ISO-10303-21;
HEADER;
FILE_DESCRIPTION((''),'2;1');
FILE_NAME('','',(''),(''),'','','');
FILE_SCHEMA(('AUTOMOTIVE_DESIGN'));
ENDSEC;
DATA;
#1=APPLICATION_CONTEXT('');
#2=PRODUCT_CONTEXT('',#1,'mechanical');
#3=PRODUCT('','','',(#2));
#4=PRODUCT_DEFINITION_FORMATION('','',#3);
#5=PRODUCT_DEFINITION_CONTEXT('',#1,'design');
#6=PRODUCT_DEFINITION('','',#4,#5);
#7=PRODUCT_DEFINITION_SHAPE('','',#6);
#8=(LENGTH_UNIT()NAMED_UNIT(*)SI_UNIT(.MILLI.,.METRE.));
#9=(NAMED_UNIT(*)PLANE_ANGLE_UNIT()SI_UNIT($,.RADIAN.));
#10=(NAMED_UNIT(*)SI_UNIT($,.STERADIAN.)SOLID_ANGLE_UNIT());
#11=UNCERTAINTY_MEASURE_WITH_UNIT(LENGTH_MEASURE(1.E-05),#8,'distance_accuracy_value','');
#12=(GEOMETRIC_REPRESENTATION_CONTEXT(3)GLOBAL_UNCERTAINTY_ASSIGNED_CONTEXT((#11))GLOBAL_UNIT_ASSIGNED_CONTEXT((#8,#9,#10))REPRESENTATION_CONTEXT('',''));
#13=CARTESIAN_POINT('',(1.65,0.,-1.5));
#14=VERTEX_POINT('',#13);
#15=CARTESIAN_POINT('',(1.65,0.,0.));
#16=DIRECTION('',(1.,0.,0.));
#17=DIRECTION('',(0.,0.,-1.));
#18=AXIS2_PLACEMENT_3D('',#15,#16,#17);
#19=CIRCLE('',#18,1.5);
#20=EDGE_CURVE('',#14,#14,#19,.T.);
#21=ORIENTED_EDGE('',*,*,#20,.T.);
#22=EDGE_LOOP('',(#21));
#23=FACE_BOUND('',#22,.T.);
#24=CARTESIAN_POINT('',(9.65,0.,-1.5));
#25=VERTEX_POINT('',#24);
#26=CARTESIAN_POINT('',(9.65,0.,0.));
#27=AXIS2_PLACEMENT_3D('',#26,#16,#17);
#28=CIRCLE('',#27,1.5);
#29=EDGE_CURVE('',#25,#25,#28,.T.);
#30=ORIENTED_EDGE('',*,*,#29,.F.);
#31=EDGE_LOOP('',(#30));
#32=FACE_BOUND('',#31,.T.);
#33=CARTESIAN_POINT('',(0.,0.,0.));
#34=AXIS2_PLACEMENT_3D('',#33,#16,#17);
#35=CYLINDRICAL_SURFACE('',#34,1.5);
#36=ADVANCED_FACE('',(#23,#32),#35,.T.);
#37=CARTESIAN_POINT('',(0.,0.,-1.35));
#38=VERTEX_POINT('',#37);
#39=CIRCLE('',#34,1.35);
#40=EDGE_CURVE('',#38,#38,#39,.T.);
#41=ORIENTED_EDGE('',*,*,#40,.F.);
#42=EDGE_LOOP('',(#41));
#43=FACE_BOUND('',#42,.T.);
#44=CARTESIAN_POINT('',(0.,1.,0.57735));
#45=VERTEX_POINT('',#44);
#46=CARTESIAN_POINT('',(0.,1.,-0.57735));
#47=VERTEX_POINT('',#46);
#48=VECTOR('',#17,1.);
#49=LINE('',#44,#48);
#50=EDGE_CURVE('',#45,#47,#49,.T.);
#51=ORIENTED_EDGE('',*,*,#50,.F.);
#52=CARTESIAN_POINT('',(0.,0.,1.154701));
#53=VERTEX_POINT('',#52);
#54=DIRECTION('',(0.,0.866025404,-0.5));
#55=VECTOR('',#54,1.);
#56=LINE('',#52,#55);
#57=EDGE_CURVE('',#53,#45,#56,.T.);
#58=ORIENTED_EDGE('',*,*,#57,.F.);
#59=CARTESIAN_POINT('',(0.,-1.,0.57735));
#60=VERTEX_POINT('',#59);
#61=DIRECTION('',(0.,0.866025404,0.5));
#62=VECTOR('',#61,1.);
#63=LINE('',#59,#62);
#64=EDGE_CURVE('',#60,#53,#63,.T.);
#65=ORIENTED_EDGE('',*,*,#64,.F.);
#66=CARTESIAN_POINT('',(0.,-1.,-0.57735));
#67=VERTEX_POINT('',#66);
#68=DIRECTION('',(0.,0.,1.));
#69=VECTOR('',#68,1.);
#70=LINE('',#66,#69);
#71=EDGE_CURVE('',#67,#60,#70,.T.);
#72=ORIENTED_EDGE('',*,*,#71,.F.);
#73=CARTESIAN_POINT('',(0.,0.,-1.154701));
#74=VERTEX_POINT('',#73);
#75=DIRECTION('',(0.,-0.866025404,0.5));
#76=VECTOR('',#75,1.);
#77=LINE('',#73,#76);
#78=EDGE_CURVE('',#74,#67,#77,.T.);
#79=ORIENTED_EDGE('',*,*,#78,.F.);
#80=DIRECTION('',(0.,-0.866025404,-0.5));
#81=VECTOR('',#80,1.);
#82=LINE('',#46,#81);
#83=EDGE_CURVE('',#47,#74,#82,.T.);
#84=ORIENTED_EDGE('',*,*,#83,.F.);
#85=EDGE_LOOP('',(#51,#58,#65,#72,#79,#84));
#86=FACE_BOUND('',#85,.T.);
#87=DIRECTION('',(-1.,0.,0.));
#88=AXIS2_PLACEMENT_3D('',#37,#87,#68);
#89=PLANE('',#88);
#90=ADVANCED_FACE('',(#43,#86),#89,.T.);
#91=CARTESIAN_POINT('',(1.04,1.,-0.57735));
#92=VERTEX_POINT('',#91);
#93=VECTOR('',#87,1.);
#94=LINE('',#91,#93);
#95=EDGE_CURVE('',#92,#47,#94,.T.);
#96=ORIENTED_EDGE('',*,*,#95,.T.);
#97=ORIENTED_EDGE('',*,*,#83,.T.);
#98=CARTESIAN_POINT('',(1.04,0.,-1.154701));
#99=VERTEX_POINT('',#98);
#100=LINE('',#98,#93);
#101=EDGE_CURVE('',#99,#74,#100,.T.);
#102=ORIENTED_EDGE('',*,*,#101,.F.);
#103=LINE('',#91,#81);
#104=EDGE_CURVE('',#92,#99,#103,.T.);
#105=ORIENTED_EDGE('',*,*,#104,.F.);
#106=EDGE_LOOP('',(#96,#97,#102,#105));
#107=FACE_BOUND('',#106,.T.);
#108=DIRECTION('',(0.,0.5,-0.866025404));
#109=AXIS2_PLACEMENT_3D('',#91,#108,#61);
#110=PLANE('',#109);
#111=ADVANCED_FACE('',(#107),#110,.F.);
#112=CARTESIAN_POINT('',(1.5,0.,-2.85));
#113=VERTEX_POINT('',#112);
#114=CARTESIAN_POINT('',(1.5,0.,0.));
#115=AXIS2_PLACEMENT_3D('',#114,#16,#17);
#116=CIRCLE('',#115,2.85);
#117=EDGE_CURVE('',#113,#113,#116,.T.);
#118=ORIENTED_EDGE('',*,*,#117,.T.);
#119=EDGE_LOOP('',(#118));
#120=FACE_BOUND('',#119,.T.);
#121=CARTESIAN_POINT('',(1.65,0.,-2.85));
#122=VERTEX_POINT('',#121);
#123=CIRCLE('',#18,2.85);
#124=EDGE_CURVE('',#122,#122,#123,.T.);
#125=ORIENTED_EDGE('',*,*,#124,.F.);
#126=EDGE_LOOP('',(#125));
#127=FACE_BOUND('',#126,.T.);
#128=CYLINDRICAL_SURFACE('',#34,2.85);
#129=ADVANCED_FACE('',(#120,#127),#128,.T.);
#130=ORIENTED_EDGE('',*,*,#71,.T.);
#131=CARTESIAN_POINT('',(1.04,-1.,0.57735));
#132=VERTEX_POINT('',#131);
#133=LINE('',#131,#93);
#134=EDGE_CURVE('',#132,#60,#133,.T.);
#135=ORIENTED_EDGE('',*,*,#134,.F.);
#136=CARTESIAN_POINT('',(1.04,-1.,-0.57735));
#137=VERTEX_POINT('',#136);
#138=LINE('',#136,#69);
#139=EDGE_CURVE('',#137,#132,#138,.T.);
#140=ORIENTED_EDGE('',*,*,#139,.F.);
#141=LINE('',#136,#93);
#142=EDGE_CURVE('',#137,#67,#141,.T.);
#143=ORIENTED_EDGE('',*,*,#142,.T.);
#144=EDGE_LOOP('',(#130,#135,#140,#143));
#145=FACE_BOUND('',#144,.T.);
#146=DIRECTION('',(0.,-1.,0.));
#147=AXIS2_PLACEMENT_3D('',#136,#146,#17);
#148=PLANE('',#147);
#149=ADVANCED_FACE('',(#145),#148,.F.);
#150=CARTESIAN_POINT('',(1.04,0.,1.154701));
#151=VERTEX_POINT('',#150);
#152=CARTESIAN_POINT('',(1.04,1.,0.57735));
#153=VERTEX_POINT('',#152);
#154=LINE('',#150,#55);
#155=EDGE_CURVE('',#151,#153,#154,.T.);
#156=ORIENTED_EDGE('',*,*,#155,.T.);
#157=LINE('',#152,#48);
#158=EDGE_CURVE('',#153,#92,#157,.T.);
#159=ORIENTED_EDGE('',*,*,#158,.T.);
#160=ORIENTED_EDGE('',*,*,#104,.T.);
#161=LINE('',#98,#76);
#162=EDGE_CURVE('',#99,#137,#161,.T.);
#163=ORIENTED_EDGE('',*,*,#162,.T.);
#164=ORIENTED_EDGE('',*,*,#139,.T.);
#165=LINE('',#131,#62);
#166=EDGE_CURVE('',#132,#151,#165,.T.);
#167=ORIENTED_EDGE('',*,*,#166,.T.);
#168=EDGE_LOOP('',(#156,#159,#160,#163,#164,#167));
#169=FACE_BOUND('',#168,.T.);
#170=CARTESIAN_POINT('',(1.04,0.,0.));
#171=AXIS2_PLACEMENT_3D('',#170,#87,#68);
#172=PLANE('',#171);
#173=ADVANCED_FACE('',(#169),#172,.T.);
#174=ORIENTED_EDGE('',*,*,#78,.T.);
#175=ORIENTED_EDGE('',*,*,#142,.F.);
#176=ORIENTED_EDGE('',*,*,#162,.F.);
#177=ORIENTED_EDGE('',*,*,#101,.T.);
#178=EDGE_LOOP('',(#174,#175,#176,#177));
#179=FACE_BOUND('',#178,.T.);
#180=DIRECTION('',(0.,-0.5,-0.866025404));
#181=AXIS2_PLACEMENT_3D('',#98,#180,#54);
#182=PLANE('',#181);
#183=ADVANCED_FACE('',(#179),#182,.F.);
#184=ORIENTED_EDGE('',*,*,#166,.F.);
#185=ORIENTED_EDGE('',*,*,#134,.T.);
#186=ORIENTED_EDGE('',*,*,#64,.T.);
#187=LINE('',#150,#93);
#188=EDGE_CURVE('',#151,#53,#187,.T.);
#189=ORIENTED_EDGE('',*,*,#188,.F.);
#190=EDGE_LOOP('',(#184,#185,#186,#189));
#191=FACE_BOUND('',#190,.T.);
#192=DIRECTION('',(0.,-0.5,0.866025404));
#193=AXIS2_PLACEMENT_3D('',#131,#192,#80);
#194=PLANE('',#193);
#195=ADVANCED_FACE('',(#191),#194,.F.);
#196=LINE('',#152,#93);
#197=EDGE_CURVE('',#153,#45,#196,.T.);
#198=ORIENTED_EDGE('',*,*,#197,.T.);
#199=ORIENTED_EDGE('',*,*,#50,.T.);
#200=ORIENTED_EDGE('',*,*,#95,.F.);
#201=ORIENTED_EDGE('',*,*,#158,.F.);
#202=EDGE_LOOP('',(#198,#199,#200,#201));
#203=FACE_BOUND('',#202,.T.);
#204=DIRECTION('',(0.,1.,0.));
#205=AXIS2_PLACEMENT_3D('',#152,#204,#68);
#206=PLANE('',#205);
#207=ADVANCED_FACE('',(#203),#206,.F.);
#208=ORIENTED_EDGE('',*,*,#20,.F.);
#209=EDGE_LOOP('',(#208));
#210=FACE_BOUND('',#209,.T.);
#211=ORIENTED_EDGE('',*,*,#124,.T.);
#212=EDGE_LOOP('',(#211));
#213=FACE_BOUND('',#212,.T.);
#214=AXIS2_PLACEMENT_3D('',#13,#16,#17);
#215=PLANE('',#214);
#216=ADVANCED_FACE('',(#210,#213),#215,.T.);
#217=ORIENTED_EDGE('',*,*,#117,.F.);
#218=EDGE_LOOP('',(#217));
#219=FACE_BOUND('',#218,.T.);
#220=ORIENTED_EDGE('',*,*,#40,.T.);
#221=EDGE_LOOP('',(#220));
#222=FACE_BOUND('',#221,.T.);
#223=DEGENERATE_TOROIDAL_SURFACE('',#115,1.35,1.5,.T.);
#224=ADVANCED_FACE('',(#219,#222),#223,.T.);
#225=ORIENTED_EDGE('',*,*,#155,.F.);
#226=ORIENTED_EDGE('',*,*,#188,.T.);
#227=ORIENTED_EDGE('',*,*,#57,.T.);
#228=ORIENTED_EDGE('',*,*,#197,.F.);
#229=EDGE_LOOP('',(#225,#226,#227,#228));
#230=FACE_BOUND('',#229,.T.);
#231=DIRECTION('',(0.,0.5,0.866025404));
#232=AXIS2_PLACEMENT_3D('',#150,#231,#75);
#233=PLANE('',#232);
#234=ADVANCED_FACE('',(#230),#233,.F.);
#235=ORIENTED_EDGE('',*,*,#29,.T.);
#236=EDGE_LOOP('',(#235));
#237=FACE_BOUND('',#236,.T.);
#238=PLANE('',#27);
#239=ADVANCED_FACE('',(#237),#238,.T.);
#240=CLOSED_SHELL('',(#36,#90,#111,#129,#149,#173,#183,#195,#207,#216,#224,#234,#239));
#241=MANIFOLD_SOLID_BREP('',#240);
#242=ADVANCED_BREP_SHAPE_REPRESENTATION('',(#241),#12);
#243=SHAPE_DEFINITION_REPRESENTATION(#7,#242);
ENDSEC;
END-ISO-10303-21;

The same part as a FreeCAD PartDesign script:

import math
import FreeCAD as App
import Part
import Sketcher

V = App.Vector
Q = App.Units.Quantity


def add_polygon(sketch, points):
    """Adds a closed chain of lines whose ends are joined by coincident constraints."""
    first, n = sketch.GeometryCount, len(points)
    for a, b in zip(points, points[1:] + points[:1]):
        sketch.addGeometry(Part.LineSegment(App.Vector(*a, 0), App.Vector(*b, 0)), False)
    for i in range(n):
        sketch.addConstraint(Sketcher.Constraint("Coincident", first + i, 2, first + (i + 1) % n, 1))

doc = App.newDocument("Part")
body = doc.addObject("PartDesign::Body", "Body")

sketch1 = body.newObject("Sketcher::SketchObject", "Sketch")
sketch1.AttachmentSupport = (doc.getObject("XZ_Plane"), [""])
sketch1.MapMode = "FlatFace"
sketch1.addGeometry([
    Part.LineSegment(V(0, 0, 0), V(9.65, 0, 0)),
    Part.LineSegment(V(9.65, 0, 0), V(9.65, -1.5, 0)),
    Part.LineSegment(V(9.65, -1.5, 0), V(1.65, -1.5, 0)),
    Part.LineSegment(V(1.65, -1.5, 0), V(1.65, -2.85, 0)),
    Part.LineSegment(V(1.65, -2.85, 0), V(1.5, -2.85, 0)),
    Part.ArcOfCircle(Part.Circle(V(1.5, -1.35, 0), V(0, 0, 1), 1.5), math.radians(180), math.radians(270)),
    Part.LineSegment(V(0, -1.35, 0), V(0, 0, 0)),
], False)
sketch1.addConstraint([
    Sketcher.Constraint("Coincident", 0, 2, 1, 1),
    Sketcher.Constraint("Coincident", 1, 2, 2, 1),
    Sketcher.Constraint("Coincident", 2, 2, 3, 1),
    Sketcher.Constraint("Coincident", 3, 2, 4, 1),
    Sketcher.Constraint("Tangent", 4, 2, 5, 2),
    Sketcher.Constraint("Tangent", 5, 1, 6, 1),
    Sketcher.Constraint("Coincident", 6, 2, 0, 1),
    Sketcher.Constraint("Horizontal", 0),
    Sketcher.Constraint("Vertical", 1),
    Sketcher.Constraint("Horizontal", 2),
    Sketcher.Constraint("Vertical", 3),
    Sketcher.Constraint("Horizontal", 4),
    Sketcher.Constraint("Vertical", 6),
    Sketcher.Constraint("Coincident", 6, 2, -1, 1),
    Sketcher.Constraint("Equal", 3, 6),
    Sketcher.Constraint("Radius", 5, 1.5),
    Sketcher.Constraint("DistanceX", 2, 2, 2, 1, 8.0),
    Sketcher.Constraint("DistanceX", 0, 1, 0, 2, 9.65),
    Sketcher.Constraint("DistanceY", 3, 2, 3, 1, 1.35),
])
revolution = body.newObject("PartDesign::Revolution", "Revolution")
revolution.Profile = sketch1
revolution.ReferenceAxis = (sketch1, ["H_Axis"])
revolution.Angle = 360

sketch2 = body.newObject("Sketcher::SketchObject", "Sketch001")
sketch2.AttachmentSupport = (doc.getObject("YZ_Plane"), [""])
sketch2.MapMode = "FlatFace"
add_polygon(sketch2, [(0, 1.2), (1, 0.6), (1, -0.6), (0, -1.2), (-1, -0.6), (-1, 0.6)])
sketch2.addConstraint([
    Sketcher.Constraint("Vertical", 1),
    Sketcher.Constraint("Vertical", 4),
    Sketcher.Constraint("Symmetric", 0, 2, 3, 2, -1, 1),
    Sketcher.Constraint("Symmetric", 2, 2, 5, 2, -1, 1),
    Sketcher.Constraint("PointOnObject", 2, 2, -2),
    Sketcher.Constraint("Parallel", 2, 5),
    Sketcher.Constraint("Horizontal", 1, 2, 3, 2),
    Sketcher.Constraint("Angle", 0, Q("-30 deg")),
    Sketcher.Constraint("DistanceX", -1, 1, 0, 2, 1.0),
    Sketcher.Constraint("DistanceY", 1, 2, 1, 1, 1.154701),
])
pocket1 = body.newObject("PartDesign::Pocket", "Pocket")
pocket1.Profile = sketch2
pocket1.Length = 1.04
pocket1.Reversed = True

doc.recompute()
